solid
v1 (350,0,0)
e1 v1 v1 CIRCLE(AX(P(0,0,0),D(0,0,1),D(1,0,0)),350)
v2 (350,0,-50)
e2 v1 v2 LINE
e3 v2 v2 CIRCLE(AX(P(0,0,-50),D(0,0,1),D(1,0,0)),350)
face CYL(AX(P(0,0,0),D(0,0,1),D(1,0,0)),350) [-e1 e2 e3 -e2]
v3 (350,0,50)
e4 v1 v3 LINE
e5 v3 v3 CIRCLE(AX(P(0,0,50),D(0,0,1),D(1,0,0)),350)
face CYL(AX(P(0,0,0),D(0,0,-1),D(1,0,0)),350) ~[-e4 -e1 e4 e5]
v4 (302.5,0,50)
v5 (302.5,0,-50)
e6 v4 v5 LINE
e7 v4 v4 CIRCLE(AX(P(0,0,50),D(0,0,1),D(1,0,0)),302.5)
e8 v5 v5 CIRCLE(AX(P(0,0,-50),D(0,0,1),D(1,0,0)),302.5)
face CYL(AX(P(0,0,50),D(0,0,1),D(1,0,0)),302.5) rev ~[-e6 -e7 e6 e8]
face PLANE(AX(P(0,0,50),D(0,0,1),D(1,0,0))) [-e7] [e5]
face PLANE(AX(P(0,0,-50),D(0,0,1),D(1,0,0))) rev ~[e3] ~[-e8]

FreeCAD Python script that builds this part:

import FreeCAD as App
import Part
import Sketcher

V = App.Vector

doc = App.newDocument("Part")
params = doc.addObject("Spreadsheet::Sheet", "Params")
for row, (alias, value) in enumerate([
    ("sketch1_diameter", "700 mm"),
    ("pad1_length", "100 mm"),
    ("sketch2_diameter", "605 mm"),
], start=1):
    params.set(f"A{row}", alias)
    params.set(f"B{row}", "=" + value)
    params.setAlias(f"B{row}", alias)

body = doc.addObject("PartDesign::Body", "Body")

# Sketch on XY plane
sketch1 = body.newObject("Sketcher::SketchObject", "Sketch")
sketch1.AttachmentSupport = (doc.getObject("XY_Plane"), [""])
sketch1.MapMode = "FlatFace"
sketch1.addGeometry(Part.Circle(V(0, 0, 0), V(0, 0, 1), 350), False)
sketch1.addConstraint(Sketcher.Constraint("Coincident", 0, 3, -1, 1))
sketch1.addConstraint(Sketcher.Constraint("Diameter", 0, 700.0))
sketch1.setExpression("Constraints[1]", "Params.sketch1_diameter")
pad1 = body.newObject("PartDesign::Pad", "Pad")
pad1.Profile = sketch1
pad1.setExpression("Length", "Params.pad1_length")
pad1.Midplane = True

# Sketch on XY plane
sketch2 = body.newObject("Sketcher::SketchObject", "Sketch001")
sketch2.AttachmentSupport = (doc.getObject("XY_Plane"), [""])
sketch2.MapMode = "FlatFace"
sketch2.AttachmentOffset = App.Placement(V(0, 0, 50), App.Rotation())
sketch2.addGeometry(Part.Circle(V(0, 0, 0), V(0, 0, 1), 302), False)
sketch2.addConstraint(Sketcher.Constraint("Coincident", 0, 3, -1, 1))
sketch2.addConstraint(Sketcher.Constraint("Diameter", 0, 605.0))
sketch2.setExpression("Constraints[1]", "Params.sketch2_diameter")
pocket1 = body.newObject("PartDesign::Pocket", "Pocket")
pocket1.Profile = sketch2
pocket1.Type = "ThroughAll"

doc.recompute()
